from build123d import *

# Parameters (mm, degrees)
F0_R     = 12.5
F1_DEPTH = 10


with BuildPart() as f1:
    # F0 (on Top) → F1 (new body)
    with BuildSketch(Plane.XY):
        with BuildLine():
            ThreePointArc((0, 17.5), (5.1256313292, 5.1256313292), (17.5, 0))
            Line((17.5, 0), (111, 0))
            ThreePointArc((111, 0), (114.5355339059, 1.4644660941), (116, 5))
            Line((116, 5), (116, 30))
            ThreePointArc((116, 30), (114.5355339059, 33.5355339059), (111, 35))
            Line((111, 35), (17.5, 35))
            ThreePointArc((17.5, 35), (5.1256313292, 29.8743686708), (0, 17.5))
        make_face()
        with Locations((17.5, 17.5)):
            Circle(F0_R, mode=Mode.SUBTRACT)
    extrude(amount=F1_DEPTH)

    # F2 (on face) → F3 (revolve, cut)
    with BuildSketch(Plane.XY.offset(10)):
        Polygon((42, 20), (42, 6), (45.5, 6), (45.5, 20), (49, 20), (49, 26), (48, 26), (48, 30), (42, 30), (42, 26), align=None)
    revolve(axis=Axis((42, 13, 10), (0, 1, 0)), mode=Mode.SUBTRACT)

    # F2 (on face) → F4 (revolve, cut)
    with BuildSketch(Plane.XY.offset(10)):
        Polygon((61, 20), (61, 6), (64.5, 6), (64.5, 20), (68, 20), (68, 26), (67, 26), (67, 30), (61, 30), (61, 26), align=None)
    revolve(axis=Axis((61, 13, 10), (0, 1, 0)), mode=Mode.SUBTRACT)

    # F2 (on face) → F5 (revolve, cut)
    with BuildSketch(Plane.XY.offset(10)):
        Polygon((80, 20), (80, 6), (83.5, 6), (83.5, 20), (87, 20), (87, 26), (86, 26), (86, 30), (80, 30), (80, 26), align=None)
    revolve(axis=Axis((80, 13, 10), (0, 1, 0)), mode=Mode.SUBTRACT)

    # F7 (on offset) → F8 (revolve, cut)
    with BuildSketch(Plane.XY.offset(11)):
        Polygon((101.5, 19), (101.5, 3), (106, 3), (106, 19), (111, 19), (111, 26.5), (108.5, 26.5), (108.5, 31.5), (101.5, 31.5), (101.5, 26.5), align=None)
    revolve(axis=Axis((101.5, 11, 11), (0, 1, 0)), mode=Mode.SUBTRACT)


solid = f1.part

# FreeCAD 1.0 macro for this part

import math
import FreeCAD as App
import Part
import Sketcher
Q = App.Units.Quantity


def add_polygon(sketch, points):
    """Adds a closed chain of lines whose ends are joined by coincident constraints."""
    first, n = sketch.GeometryCount, len(points)
    for a, b in zip(points, points[1:] + points[:1]):
        sketch.addGeometry(Part.LineSegment(App.Vector(*a, 0), App.Vector(*b, 0)), False)
    for i in range(n):
        sketch.addConstraint(Sketcher.Constraint("Coincident", first + i, 2, first + (i + 1) % n, 1))

doc = App.newDocument("Part")
params = doc.addObject("Spreadsheet::Sheet", "Params")
for row, (alias, value) in enumerate([
    ("sketch1_diameter", "25 mm"),
    ("sketch1_radius", "5 mm"),
    ("sketch1_radius2", "17.5 mm"),
    ("sketch1_width", "93.5 mm"),
    ("pad1_length", "10 mm"),
    ("sketch2_width", "1 mm"),
    ("sketch2_width2", "6 mm"),
    ("sketch2_height", "14 mm"),
    ("sketch2_height2", "4 mm"),
    ("groove_angle", "360 deg"),
    ("sketch3_width", "1 mm"),
    ("sketch3_width2", "6 mm"),
    ("sketch3_height", "14 mm"),
    ("sketch3_height2", "4 mm"),
    ("groove2_angle", "360 deg"),
    ("sketch4_width", "1 mm"),
    ("sketch4_width2", "6 mm"),
    ("sketch4_height", "14 mm"),
    ("sketch4_height2", "4 mm"),
    ("groove3_angle", "360 deg"),
    ("sketch5_width", "5 mm"),
    ("sketch5_width2", "7 mm"),
    ("sketch5_height", "16 mm"),
    ("sketch5_width3", "4.5 mm"),
    ("sketch5_height2", "7.5 mm"),
    ("groove4_angle", "360 deg"),
], start=1):
    params.set(f"A{row}", alias)
    params.set(f"B{row}", "=" + value)
    params.setAlias(f"B{row}", alias)

body = doc.addObject("PartDesign::Body", "Body")

sketch1 = body.newObject("Sketcher::SketchObject", "Sketch")
sketch1.AttachmentSupport = (doc.getObject("XY_Plane"), [""])
sketch1.MapMode = "FlatFace"
sketch1.addGeometry([
    Part.ArcOfCircle(Part.Circle(App.Vector(18, 18, 0), App.Vector(0, 0, 1), 18), math.radians(180), math.radians(270)),
    Part.LineSegment(App.Vector(18, 0, 0), App.Vector(111, 0, 0)),
    Part.ArcOfCircle(Part.Circle(App.Vector(111, 5, 0), App.Vector(0, 0, 1), 5), math.radians(-90), math.radians(0)),
    Part.LineSegment(App.Vector(116, 5, 0), App.Vector(116, 30, 0)),
    Part.ArcOfCircle(Part.Circle(App.Vector(111, 30, 0), App.Vector(0, 0, 1), 5), math.radians(0), math.radians(90)),
    Part.LineSegment(App.Vector(111, 35, 0), App.Vector(18, 35, 0)),
    Part.ArcOfCircle(Part.Circle(App.Vector(18, 18, 0), App.Vector(0, 0, 1), 18), math.radians(90), math.radians(180)),
    Part.Circle(App.Vector(18, 18, 0), App.Vector(0, 0, 1), 12),
], False)
sketch1.addConstraint([
    Sketcher.Constraint("Tangent", 0, 2, 1, 1),
    Sketcher.Constraint("Tangent", 1, 2, 2, 1),
    Sketcher.Constraint("Tangent", 2, 2, 3, 1),
    Sketcher.Constraint("Tangent", 3, 2, 4, 1),
    Sketcher.Constraint("Tangent", 4, 2, 5, 1),
    Sketcher.Constraint("Tangent", 5, 2, 6, 1),
    Sketcher.Constraint("Tangent", 6, 2, 0, 1),
    Sketcher.Constraint("Horizontal", 1),
    Sketcher.Constraint("Vertical", 3),
    Sketcher.Constraint("Horizontal", 5),
    Sketcher.Constraint("Coincident", 7, 3, 0, 3),
    Sketcher.Constraint("Equal", 2, 4),
    Sketcher.Constraint("Equal", 0, 6),
    Sketcher.Constraint("PointOnObject", 0, 2, -1),
    Sketcher.Constraint("PointOnObject", 6, 2, -2),
    Sketcher.Constraint("Horizontal", 7, 3, 6, 2),
    Sketcher.Constraint("Diameter", 7, Q("25 mm")),
    Sketcher.Constraint("Radius", 2, Q("5 mm")),
    Sketcher.Constraint("Radius", 0, Q("17.5 mm")),
    Sketcher.Constraint("DistanceX", 1, 1, 1, 2, Q("93.5 mm")),
])
sketch1.setExpression("Constraints[16]", "Params.sketch1_diameter")
sketch1.setExpression("Constraints[17]", "Params.sketch1_radius")
sketch1.setExpression("Constraints[18]", "Params.sketch1_radius2")
sketch1.setExpression("Constraints[19]", "Params.sketch1_width")
pad1 = body.newObject("PartDesign::Pad", "Pad")
pad1.Profile = sketch1
pad1.setExpression("Length", "Params.pad1_length")

sketch2 = body.newObject("Sketcher::SketchObject", "Sketch001")
sketch2.AttachmentSupport = (doc.getObject("XY_Plane"), [""])
sketch2.MapMode = "FlatFace"
sketch2.AttachmentOffset = App.Placement(App.Vector(0, 0, 10), App.Rotation())
add_polygon(sketch2, [(42, 6), (45.5, 6), (45.5, 20), (49, 20), (49, 26), (48, 26), (48, 30), (42, 30)])
sketch2.addGeometry(Part.LineSegment(App.Vector(42, 6, 0), App.Vector(42, 30, 0)), True)
sketch2.addConstraint([
    Sketcher.Constraint("Horizontal", 0),
    Sketcher.Constraint("Vertical", 1),
    Sketcher.Constraint("Horizontal", 2),
    Sketcher.Constraint("Vertical", 3),
    Sketcher.Constraint("Horizontal", 4),
    Sketcher.Constraint("Vertical", 5),
    Sketcher.Constraint("Horizontal", 6),
    Sketcher.Constraint("Vertical", 7),
    Sketcher.Constraint("Vertical", 8),
    Sketcher.Constraint("Coincident", 8, 1, 7, 2),
    Sketcher.Constraint("Horizontal", 5, 2, 8, 2),
    Sketcher.Constraint("Equal", 0, 2),
    Sketcher.Constraint("Equal", 6, 3),
    Sketcher.Constraint("DistanceX", 4, 2, 4, 1, Q("1 mm")),
    Sketcher.Constraint("DistanceX", 6, 2, 6, 1, Q("6 mm")),
    Sketcher.Constraint("DistanceY", 1, 1, 1, 2, Q("14 mm")),
    Sketcher.Constraint("DistanceY", 5, 1, 5, 2, Q("4 mm")),
    Sketcher.Constraint("DistanceY", -1, 1, 0, 2, Q("6 mm")),
    Sketcher.Constraint("DistanceX", -1, 1, 2, 2, Q("49 mm")),
])
sketch2.setExpression("Constraints[21]", "Params.sketch2_width")
sketch2.setExpression("Constraints[22]", "Params.sketch2_width2")
sketch2.setExpression("Constraints[23]", "Params.sketch2_height")
sketch2.setExpression("Constraints[24]", "Params.sketch2_height2")
groove = body.newObject("PartDesign::Groove", "Groove")
groove.Profile = sketch2
groove.ReferenceAxis = (sketch2, ["Axis0"])
groove.setExpression("Angle", "Params.groove_angle")

sketch3 = body.newObject("Sketcher::SketchObject", "Sketch002")
sketch3.AttachmentSupport = (doc.getObject("XY_Plane"), [""])
sketch3.MapMode = "FlatFace"
sketch3.AttachmentOffset = App.Placement(App.Vector(0, 0, 10), App.Rotation())
add_polygon(sketch3, [(61, 6), (64.5, 6), (64.5, 20), (68, 20), (68, 26), (67, 26), (67, 30), (61, 30)])
sketch3.addGeometry(Part.LineSegment(App.Vector(61, 6, 0), App.Vector(61, 30, 0)), True)
sketch3.addConstraint([
    Sketcher.Constraint("Horizontal", 0),
    Sketcher.Constraint("Vertical", 1),
    Sketcher.Constraint("Horizontal", 2),
    Sketcher.Constraint("Vertical", 3),
    Sketcher.Constraint("Horizontal", 4),
    Sketcher.Constraint("Vertical", 5),
    Sketcher.Constraint("Horizontal", 6),
    Sketcher.Constraint("Vertical", 7),
    Sketcher.Constraint("Vertical", 8),
    Sketcher.Constraint("Coincident", 8, 1, 7, 2),
    Sketcher.Constraint("Horizontal", 5, 2, 8, 2),
    Sketcher.Constraint("Equal", 0, 2),
    Sketcher.Constraint("Equal", 6, 3),
    Sketcher.Constraint("DistanceX", 4, 2, 4, 1, Q("1 mm")),
    Sketcher.Constraint("DistanceX", 6, 2, 6, 1, Q("6 mm")),
    Sketcher.Constraint("DistanceY", 1, 1, 1, 2, Q("14 mm")),
    Sketcher.Constraint("DistanceY", 5, 1, 5, 2, Q("4 mm")),
    Sketcher.Constraint("DistanceY", -1, 1, 0, 2, Q("6 mm")),
    Sketcher.Constraint("DistanceX", -1, 1, 2, 2, Q("68 mm")),
])
sketch3.setExpression("Constraints[21]", "Params.sketch3_width")
sketch3.setExpression("Constraints[22]", "Params.sketch3_width2")
sketch3.setExpression("Constraints[23]", "Params.sketch3_height")
sketch3.setExpression("Constraints[24]", "Params.sketch3_height2")
groove2 = body.newObject("PartDesign::Groove", "Groove001")
groove2.Profile = sketch3
groove2.ReferenceAxis = (sketch3, ["Axis0"])
groove2.setExpression("Angle", "Params.groove2_angle")

sketch4 = body.newObject("Sketcher::SketchObject", "Sketch003")
sketch4.AttachmentSupport = (doc.getObject("XY_Plane"), [""])
sketch4.MapMode = "FlatFace"
sketch4.AttachmentOffset = App.Placement(App.Vector(0, 0, 10), App.Rotation())
add_polygon(sketch4, [(80, 6), (83.5, 6), (83.5, 20), (87, 20), (87, 26), (86, 26), (86, 30), (80, 30)])
sketch4.addGeometry(Part.LineSegment(App.Vector(80, 6, 0), App.Vector(80, 30, 0)), True)
sketch4.addConstraint([
    Sketcher.Constraint("Horizontal", 0),
    Sketcher.Constraint("Vertical", 1),
    Sketcher.Constraint("Horizontal", 2),
    Sketcher.Constraint("Vertical", 3),
    Sketcher.Constraint("Horizontal", 4),
    Sketcher.Constraint("Vertical", 5),
    Sketcher.Constraint("Horizontal", 6),
    Sketcher.Constraint("Vertical", 7),
    Sketcher.Constraint("Vertical", 8),
    Sketcher.Constraint("Coincident", 8, 1, 7, 2),
    Sketcher.Constraint("Horizontal", 5, 2, 8, 2),
    Sketcher.Constraint("Equal", 0, 2),
    Sketcher.Constraint("Equal", 6, 3),
    Sketcher.Constraint("DistanceX", 4, 2, 4, 1, Q("1 mm")),
    Sketcher.Constraint("DistanceX", 6, 2, 6, 1, Q("6 mm")),
    Sketcher.Constraint("DistanceY", 1, 1, 1, 2, Q("14 mm")),
    Sketcher.Constraint("DistanceY", 5, 1, 5, 2, Q("4 mm")),
    Sketcher.Constraint("DistanceY", -1, 1, 0, 2, Q("6 mm")),
    Sketcher.Constraint("DistanceX", -1, 1, 2, 2, Q("87 mm")),
])
sketch4.setExpression("Constraints[21]", "Params.sketch4_width")
sketch4.setExpression("Constraints[22]", "Params.sketch4_width2")
sketch4.setExpression("Constraints[23]", "Params.sketch4_height")
sketch4.setExpression("Constraints[24]", "Params.sketch4_height2")
groove3 = body.newObject("PartDesign::Groove", "Groove002")
groove3.Profile = sketch4
groove3.ReferenceAxis = (sketch4, ["Axis0"])
groove3.setExpression("Angle", "Params.groove3_angle")

sketch5 = body.newObject("Sketcher::SketchObject", "Sketch004")
sketch5.AttachmentSupport = (doc.getObject("XY_Plane"), [""])
sketch5.MapMode = "FlatFace"
sketch5.AttachmentOffset = App.Placement(App.Vector(0, 0, 11), App.Rotation())
add_polygon(sketch5, [(101.5, 3), (106, 3), (106, 19), (111, 19), (111, 26.5), (108.5, 26.5), (108.5, 31.5), (101.5, 31.5)])
sketch5.addGeometry(Part.LineSegment(App.Vector(101.5, 3, 0), App.Vector(101.5, 31.5, 0)), True)
sketch5.addConstraint([
    Sketcher.Constraint("Horizontal", 0),
    Sketcher.Constraint("Vertical", 1),
    Sketcher.Constraint("Horizontal", 2),
    Sketcher.Constraint("Vertical", 3),
    Sketcher.Constraint("Horizontal", 4),
    Sketcher.Constraint("Vertical", 5),
    Sketcher.Constraint("Horizontal", 6),
    Sketcher.Constraint("Vertical", 7),
    Sketcher.Constraint("Vertical", 8),
    Sketcher.Constraint("Coincident", 8, 1, 7, 2),
    Sketcher.Constraint("Horizontal", 5, 2, 8, 2),
    Sketcher.Constraint("Equal", 2, 5),
    Sketcher.Constraint("DistanceX", 2, 1, 2, 2, Q("5 mm")),
    Sketcher.Constraint("DistanceX", 6, 2, 6, 1, Q("7 mm")),
    Sketcher.Constraint("DistanceY", 1, 1, 1, 2, Q("16 mm")),
    Sketcher.Constraint("DistanceX", 0, 1, 0, 2, Q("4.5 mm")),
    Sketcher.Constraint("DistanceY", 3, 1, 3, 2, Q("7.5 mm")),
    Sketcher.Constraint("DistanceX", -1, 1, 0, 2, Q("106 mm")),
    Sketcher.Constraint("DistanceY", -1, 1, 0, 2, Q("3 mm")),
])
sketch5.setExpression("Constraints[20]", "Params.sketch5_width")
sketch5.setExpression("Constraints[21]", "Params.sketch5_width2")
sketch5.setExpression("Constraints[22]", "Params.sketch5_height")
sketch5.setExpression("Constraints[23]", "Params.sketch5_width3")
sketch5.setExpression("Constraints[24]", "Params.sketch5_height2")
groove4 = body.newObject("PartDesign::Groove", "Groove003")
groove4.Profile = sketch5
groove4.ReferenceAxis = (sketch5, ["Axis0"])
groove4.setExpression("Angle", "Params.groove4_angle")

doc.recompute()
